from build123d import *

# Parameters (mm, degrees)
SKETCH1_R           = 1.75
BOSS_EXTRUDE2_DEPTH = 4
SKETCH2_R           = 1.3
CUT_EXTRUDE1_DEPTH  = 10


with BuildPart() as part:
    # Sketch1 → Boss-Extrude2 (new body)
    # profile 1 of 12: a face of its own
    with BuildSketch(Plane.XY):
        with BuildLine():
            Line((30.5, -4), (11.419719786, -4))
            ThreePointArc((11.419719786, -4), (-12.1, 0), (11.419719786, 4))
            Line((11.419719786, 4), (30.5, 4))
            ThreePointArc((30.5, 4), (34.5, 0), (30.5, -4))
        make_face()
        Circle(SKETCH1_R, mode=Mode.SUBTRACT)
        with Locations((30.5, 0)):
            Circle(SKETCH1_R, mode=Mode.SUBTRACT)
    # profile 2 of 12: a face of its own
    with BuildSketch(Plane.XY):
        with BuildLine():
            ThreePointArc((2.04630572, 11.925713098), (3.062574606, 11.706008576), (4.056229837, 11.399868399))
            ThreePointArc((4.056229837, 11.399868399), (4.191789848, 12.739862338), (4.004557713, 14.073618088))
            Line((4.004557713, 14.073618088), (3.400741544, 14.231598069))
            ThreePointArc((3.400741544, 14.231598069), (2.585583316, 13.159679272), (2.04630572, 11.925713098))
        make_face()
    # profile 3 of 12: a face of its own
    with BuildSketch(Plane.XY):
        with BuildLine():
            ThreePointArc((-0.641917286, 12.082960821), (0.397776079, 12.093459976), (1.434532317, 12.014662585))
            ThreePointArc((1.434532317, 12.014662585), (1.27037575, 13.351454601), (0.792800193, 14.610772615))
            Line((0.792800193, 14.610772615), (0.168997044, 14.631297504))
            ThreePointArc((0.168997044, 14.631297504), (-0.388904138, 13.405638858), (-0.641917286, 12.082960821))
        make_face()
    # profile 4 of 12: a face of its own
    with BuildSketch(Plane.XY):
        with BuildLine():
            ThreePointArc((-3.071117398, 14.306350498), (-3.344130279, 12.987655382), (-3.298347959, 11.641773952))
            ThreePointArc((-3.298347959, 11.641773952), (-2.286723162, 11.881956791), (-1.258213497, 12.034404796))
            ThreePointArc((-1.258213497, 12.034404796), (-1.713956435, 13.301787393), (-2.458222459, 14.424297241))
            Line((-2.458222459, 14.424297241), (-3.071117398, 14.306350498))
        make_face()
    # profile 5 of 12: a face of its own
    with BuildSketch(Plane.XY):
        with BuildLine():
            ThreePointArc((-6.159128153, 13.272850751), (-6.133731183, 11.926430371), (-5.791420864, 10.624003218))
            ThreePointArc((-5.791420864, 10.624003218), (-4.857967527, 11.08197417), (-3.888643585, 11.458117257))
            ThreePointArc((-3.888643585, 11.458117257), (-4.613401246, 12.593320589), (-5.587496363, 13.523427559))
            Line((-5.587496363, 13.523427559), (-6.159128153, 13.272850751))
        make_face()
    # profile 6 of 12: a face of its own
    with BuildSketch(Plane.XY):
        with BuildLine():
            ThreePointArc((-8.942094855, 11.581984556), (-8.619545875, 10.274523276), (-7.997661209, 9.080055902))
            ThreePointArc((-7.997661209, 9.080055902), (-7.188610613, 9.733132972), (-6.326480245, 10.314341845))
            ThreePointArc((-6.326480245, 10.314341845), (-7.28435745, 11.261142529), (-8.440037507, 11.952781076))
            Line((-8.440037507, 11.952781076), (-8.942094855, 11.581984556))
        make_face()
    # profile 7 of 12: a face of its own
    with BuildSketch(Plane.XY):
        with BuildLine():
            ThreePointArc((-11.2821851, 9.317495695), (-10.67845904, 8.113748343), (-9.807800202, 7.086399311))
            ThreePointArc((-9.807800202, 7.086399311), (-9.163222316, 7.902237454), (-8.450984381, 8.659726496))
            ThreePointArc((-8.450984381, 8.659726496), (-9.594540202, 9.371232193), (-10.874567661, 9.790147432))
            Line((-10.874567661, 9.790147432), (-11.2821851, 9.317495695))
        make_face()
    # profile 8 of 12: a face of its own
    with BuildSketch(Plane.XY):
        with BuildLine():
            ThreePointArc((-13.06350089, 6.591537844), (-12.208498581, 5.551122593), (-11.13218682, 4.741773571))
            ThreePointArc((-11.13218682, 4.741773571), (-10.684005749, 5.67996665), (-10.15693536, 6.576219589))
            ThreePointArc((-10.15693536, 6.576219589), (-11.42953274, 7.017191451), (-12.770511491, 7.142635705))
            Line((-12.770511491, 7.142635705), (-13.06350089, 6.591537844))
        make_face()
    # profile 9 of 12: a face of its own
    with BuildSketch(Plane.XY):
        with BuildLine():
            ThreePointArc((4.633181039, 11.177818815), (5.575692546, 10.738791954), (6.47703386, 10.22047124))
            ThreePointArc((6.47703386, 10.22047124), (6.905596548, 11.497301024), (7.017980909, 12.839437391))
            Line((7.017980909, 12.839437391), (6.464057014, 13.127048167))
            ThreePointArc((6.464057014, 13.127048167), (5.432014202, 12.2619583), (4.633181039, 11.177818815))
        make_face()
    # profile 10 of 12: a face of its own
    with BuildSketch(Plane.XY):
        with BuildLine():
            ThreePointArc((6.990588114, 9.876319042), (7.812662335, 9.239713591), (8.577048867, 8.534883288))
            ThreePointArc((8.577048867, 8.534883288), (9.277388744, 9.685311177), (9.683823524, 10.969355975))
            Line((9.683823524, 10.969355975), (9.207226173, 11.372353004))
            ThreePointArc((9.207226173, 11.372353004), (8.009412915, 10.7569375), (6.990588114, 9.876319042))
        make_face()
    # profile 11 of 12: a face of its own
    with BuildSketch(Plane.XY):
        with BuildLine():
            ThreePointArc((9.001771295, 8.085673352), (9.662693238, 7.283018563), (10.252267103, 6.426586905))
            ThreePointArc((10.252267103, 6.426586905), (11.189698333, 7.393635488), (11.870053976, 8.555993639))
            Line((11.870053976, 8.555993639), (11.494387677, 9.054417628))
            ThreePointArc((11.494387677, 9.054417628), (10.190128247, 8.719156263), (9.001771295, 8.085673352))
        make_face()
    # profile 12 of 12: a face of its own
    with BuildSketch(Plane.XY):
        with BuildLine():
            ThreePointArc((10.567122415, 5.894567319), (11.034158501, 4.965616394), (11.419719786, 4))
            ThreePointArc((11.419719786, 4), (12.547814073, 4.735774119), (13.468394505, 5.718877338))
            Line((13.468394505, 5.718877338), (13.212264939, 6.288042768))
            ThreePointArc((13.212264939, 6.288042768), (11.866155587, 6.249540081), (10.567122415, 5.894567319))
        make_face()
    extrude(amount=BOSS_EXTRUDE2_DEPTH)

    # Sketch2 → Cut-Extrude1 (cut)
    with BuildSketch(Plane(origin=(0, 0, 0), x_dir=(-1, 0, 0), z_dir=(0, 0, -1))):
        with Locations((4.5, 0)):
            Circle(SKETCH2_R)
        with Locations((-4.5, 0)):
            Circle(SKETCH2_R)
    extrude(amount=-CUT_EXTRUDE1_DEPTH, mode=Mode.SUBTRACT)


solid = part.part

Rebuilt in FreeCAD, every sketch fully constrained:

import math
import FreeCAD as App
import Part
import Sketcher

V = App.Vector

doc = App.newDocument("Part")
body = doc.addObject("PartDesign::Body", "Body")

# Sketch on XY plane
sketch1 = body.newObject("Sketcher::SketchObject", "Sketch")
sketch1.AttachmentSupport = (doc.getObject("XY_Plane"), [""])
sketch1.MapMode = "FlatFace"
sketch1.addGeometry(Part.LineSegment(V(11.4, -4, 0), V(30.5, -4, 0)), False)
sketch1.addGeometry(Part.ArcOfCircle(Part.Circle(V(30.5, 0, 0), V(0, 0, 1), 4), math.radians(-90), math.radians(90)), False)
sketch1.addGeometry(Part.LineSegment(V(30.5, 4, 0), V(11.4, 4, 0)), False)
sketch1.addGeometry(Part.ArcOfCircle(Part.Circle(V(8.9, 9, 0), V(0, 0, 1), 5.6), math.radians(-64), math.radians(-36)), False)
sketch1.addGeometry(Part.LineSegment(V(13.5, 5.7, 0), V(13.2, 6.3, 0)), False)
sketch1.addGeometry(Part.ArcOfCircle(Part.Circle(V(12.7, 0.6, 0), V(0, 0, 1), 5.7), math.radians(85), math.radians(112)), False)
sketch1.addGeometry(Part.ArcOfCircle(Part.Circle(V(0, 0, 0), V(0, 0, 1), 12.1), math.radians(29.15), math.radians(32.08)), False)
sketch1.addGeometry(Part.ArcOfCircle(Part.Circle(V(6.7, 10.8, 0), V(0, 0, 1), 5.6), math.radians(-51), math.radians(-23)), False)
sketch1.addGeometry(Part.LineSegment(V(11.9, 8.6, 0), V(11.5, 9.1, 0)), False)
sketch1.addGeometry(Part.ArcOfCircle(Part.Circle(V(12.2, 3.4, 0), V(0, 0, 1), 5.7), math.radians(98), math.radians(125)), False)
sketch1.addGeometry(Part.ArcOfCircle(Part.Circle(V(0, 0, 0), V(0, 0, 1), 12.1), math.radians(41.93), math.radians(44.86)), False)
sketch1.addGeometry(Part.ArcOfCircle(Part.Circle(V(4.2, 12, 0), V(0, 0, 1), 5.6), math.radians(-38), math.radians(-11)), False)
sketch1.addGeometry(Part.LineSegment(V(9.7, 11, 0), V(9.2, 11.4, 0)), False)
sketch1.addGeometry(Part.ArcOfCircle(Part.Circle(V(11.2, 6.1, 0), V(0, 0, 1), 5.7), math.radians(110), math.radians(138)), False)
sketch1.addGeometry(Part.ArcOfCircle(Part.Circle(V(0, 0, 0), V(0, 0, 1), 12.1), math.radians(54.71), math.radians(57.64)), False)
sketch1.addGeometry(Part.ArcOfCircle(Part.Circle(V(1.4, 12.6, 0), V(0, 0, 1), 5.6), math.radians(-25), math.radians(2)), False)
sketch1.addGeometry(Part.LineSegment(V(7, 12.8, 0), V(6.5, 13.1, 0)), False)
sketch1.addGeometry(Part.ArcOfCircle(Part.Circle(V(9.6, 8.4, 0), V(0, 0, 1), 5.7), math.radians(123), math.radians(150)), False)
sketch1.addGeometry(Part.ArcOfCircle(Part.Circle(V(0, 0, 0), V(0, 0, 1), 12.1), math.radians(67.49), math.radians(70.41)), False)
sketch1.addGeometry(Part.ArcOfCircle(Part.Circle(V(-1.4, 12.6, 0), V(0, 0, 1), 5.6), math.radians(-13), math.radians(15)), False)
sketch1.addGeometry(Part.LineSegment(V(4, 14.1, 0), V(3.4, 14.2, 0)), False)
sketch1.addGeometry(Part.ArcOfCircle(Part.Circle(V(7.5, 10.3, 0), V(0, 0, 1), 5.7), math.radians(136), math.radians(163)), False)
sketch1.addGeometry(Part.ArcOfCircle(Part.Circle(V(0, 0, 0), V(0, 0, 1), 12.1), math.radians(80.26), math.radians(83.19)), False)
sketch1.addGeometry(Part.ArcOfCircle(Part.Circle(V(-4.2, 12, 0), V(0, 0, 1), 5.6), math.radians(0), math.radians(28)), False)
sketch1.addGeometry(Part.LineSegment(V(0.8, 14.6, 0), V(0.2, 14.6, 0)), False)
sketch1.addGeometry(Part.ArcOfCircle(Part.Circle(V(5, 11.7, 0), V(0, 0, 1), 5.7), math.radians(149), math.radians(176)), False)
sketch1.addGeometry(Part.ArcOfCircle(Part.Circle(V(0, 0, 0), V(0, 0, 1), 12.1), math.radians(93.04), math.radians(95.97)), False)
sketch1.addGeometry(Part.ArcOfCircle(Part.Circle(V(-6.7, 10.8, 0), V(0, 0, 1), 5.6), math.radians(13), math.radians(40)), False)
sketch1.addGeometry(Part.LineSegment(V(-2.5, 14.4, 0), V(-3.1, 14.3, 0)), False)
sketch1.addGeometry(Part.ArcOfCircle(Part.Circle(V(2.3, 12.5, 0), V(0, 0, 1), 5.7), math.radians(161), math.radians(189)), False)
sketch1.addGeometry(Part.ArcOfCircle(Part.Circle(V(0, 0, 0), V(0, 0, 1), 12.1), math.radians(105.82), math.radians(108.75)), False)
sketch1.addGeometry(Part.ArcOfCircle(Part.Circle(V(-9, 9, 0), V(0, 0, 1), 5.6), math.radians(26), math.radians(53)), False)
sketch1.addGeometry(Part.LineSegment(V(-5.6, 13.5, 0), V(-6.2, 13.3, 0)), False)
sketch1.addGeometry(Part.ArcOfCircle(Part.Circle(V(-0.5, 12.7, 0), V(0, 0, 1), 5.7), math.radians(174), math.radians(202)), False)
sketch1.addGeometry(Part.ArcOfCircle(Part.Circle(V(0, 0, 0), V(0, 0, 1), 12.1), math.radians(118.6), math.radians(121.52)), False)
sketch1.addGeometry(Part.ArcOfCircle(Part.Circle(V(-10.7, 6.8, 0), V(0, 0, 1), 5.6), math.radians(38), math.radians(66)), False)
sketch1.addGeometry(Part.LineSegment(V(-8.4, 12, 0), V(-8.9, 11.6, 0)), False)
sketch1.addGeometry(Part.ArcOfCircle(Part.Circle(V(-3.3, 12.3, 0), V(0, 0, 1), 5.7), math.radians(-173), math.radians(-146)), False)
sketch1.addGeometry(Part.ArcOfCircle(Part.Circle(V(0, 0, 0), V(0, 0, 1), 12.1), math.radians(131.37), math.radians(134.3)), False)
sketch1.addGeometry(Part.ArcOfCircle(Part.Circle(V(-12, 4.3, 0), V(0, 0, 1), 5.6), math.radians(51), math.radians(79)), False)
sketch1.addGeometry(Part.LineSegment(V(-10.9, 9.8, 0), V(-11.3, 9.3, 0)), False)
sketch1.addGeometry(Part.ArcOfCircle(Part.Circle(V(-5.9, 11.2, 0), V(0, 0, 1), 5.7), math.radians(-160), math.radians(-133)), False)
sketch1.addGeometry(Part.ArcOfCircle(Part.Circle(V(0, 0, 0), V(0, 0, 1), 12.1), math.radians(144.15), math.radians(147.08)), False)
sketch1.addGeometry(Part.ArcOfCircle(Part.Circle(V(-12.6, 1.5, 0), V(0, 0, 1), 5.6), math.radians(64), math.radians(92)), False)
sketch1.addGeometry(Part.LineSegment(V(-12.8, 7.1, 0), V(-13.1, 6.6, 0)), False)
sketch1.addGeometry(Part.ArcOfCircle(Part.Circle(V(-8.3, 9.6, 0), V(0, 0, 1), 5.7), math.radians(-147), math.radians(-120)), False)
sketch1.addGeometry(Part.ArcOfCircle(Part.Circle(V(0, 0, 0), V(0, 0, 1), 12.1), math.radians(157), math.radians(341)), False)
sketch1.addGeometry(Part.Circle(V(30.5, 0, 0), V(0, 0, 1), 1.8), False)
sketch1.addGeometry(Part.Circle(V(0, 0, 0), V(0, 0, 1), 1.8), False)
sketch1.addConstraint(Sketcher.Constraint("Tangent", 0, 2, 1, 1))
sketch1.addConstraint(Sketcher.Constraint("Tangent", 1, 2, 2, 1))
sketch1.addConstraint(Sketcher.Constraint("Coincident", 2, 2, 3, 1))
sketch1.addConstraint(Sketcher.Constraint("Coincident", 3, 2, 4, 1))
sketch1.addConstraint(Sketcher.Constraint("Coincident", 4, 2, 5, 1))
sketch1.addConstraint(Sketcher.Constraint("Coincident", 5, 2, 6, 1))
sketch1.addConstraint(Sketcher.Constraint("Coincident", 6, 2, 7, 1))
sketch1.addConstraint(Sketcher.Constraint("Coincident", 7, 2, 8, 1))
sketch1.addConstraint(Sketcher.Constraint("Coincident", 8, 2, 9, 1))
sketch1.addConstraint(Sketcher.Constraint("Coincident", 9, 2, 10, 1))
sketch1.addConstraint(Sketcher.Constraint("Coincident", 10, 2, 11, 1))
sketch1.addConstraint(Sketcher.Constraint("Coincident", 11, 2, 12, 1))
sketch1.addConstraint(Sketcher.Constraint("Coincident", 12, 2, 13, 1))
sketch1.addConstraint(Sketcher.Constraint("Coincident", 13, 2, 14, 1))
sketch1.addConstraint(Sketcher.Constraint("Coincident", 14, 2, 15, 1))
sketch1.addConstraint(Sketcher.Constraint("Coincident", 15, 2, 16, 1))
sketch1.addConstraint(Sketcher.Constraint("Coincident", 16, 2, 17, 1))
sketch1.addConstraint(Sketcher.Constraint("Coincident", 17, 2, 18, 1))
sketch1.addConstraint(Sketcher.Constraint("Coincident", 18, 2, 19, 1))
sketch1.addConstraint(Sketcher.Constraint("Coincident", 19, 2, 20, 1))
sketch1.addConstraint(Sketcher.Constraint("Coincident", 20, 2, 21, 1))
sketch1.addConstraint(Sketcher.Constraint("Coincident", 21, 2, 22, 1))
sketch1.addConstraint(Sketcher.Constraint("Coincident", 22, 2, 23, 1))
sketch1.addConstraint(Sketcher.Constraint("Coincident", 23, 2, 24, 1))
sketch1.addConstraint(Sketcher.Constraint("Coincident", 24, 2, 25, 1))
sketch1.addConstraint(Sketcher.Constraint("Coincident", 25, 2, 26, 1))
sketch1.addConstraint(Sketcher.Constraint("Coincident", 26, 2, 27, 1))
sketch1.addConstraint(Sketcher.Constraint("Coincident", 27, 2, 28, 1))
sketch1.addConstraint(Sketcher.Constraint("Coincident", 28, 2, 29, 1))
sketch1.addConstraint(Sketcher.Constraint("Coincident", 29, 2, 30, 1))
sketch1.addConstraint(Sketcher.Constraint("Coincident", 30, 2, 31, 1))
sketch1.addConstraint(Sketcher.Constraint("Coincident", 31, 2, 32, 1))
sketch1.addConstraint(Sketcher.Constraint("Coincident", 32, 2, 33, 1))
sketch1.addConstraint(Sketcher.Constraint("Coincident", 33, 2, 34, 1))
sketch1.addConstraint(Sketcher.Constraint("Coincident", 34, 2, 35, 1))
sketch1.addConstraint(Sketcher.Constraint("Coincident", 35, 2, 36, 1))
sketch1.addConstraint(Sketcher.Constraint("Coincident", 36, 2, 37, 1))
sketch1.addConstraint(Sketcher.Constraint("Coincident", 37, 2, 38, 1))
sketch1.addConstraint(Sketcher.Constraint("Coincident", 38, 2, 39, 1))
sketch1.addConstraint(Sketcher.Constraint("Coincident", 39, 2, 40, 1))
sketch1.addConstraint(Sketcher.Constraint("Coincident", 40, 2, 41, 1))
sketch1.addConstraint(Sketcher.Constraint("Coincident", 41, 2, 42, 1))
sketch1.addConstraint(Sketcher.Constraint("Coincident", 42, 2, 43, 1))
sketch1.addConstraint(Sketcher.Constraint("Coincident", 43, 2, 44, 1))
sketch1.addConstraint(Sketcher.Constraint("Coincident", 44, 2, 45, 1))
sketch1.addConstraint(Sketcher.Constraint("Coincident", 45, 2, 46, 1))
sketch1.addConstraint(Sketcher.Constraint("Coincident", 46, 2, 0, 1))
sketch1.addConstraint(Sketcher.Constraint("Horizontal", 0))
sketch1.addConstraint(Sketcher.Constraint("Horizontal", 2))
sketch1.addConstraint(Sketcher.Constraint("Coincident", 6, 3, -1, 1))
sketch1.addConstraint(Sketcher.Constraint("Coincident", 10, 3, -1, 1))
sketch1.addConstraint(Sketcher.Constraint("Coincident", 14, 3, -1, 1))
sketch1.addConstraint(Sketcher.Constraint("Coincident", 18, 3, -1, 1))
sketch1.addConstraint(Sketcher.Constraint("Coincident", 22, 3, -1, 1))
sketch1.addConstraint(Sketcher.Constraint("Coincident", 26, 3, -1, 1))
sketch1.addConstraint(Sketcher.Constraint("Coincident", 30, 3, -1, 1))
sketch1.addConstraint(Sketcher.Constraint("Coincident", 34, 3, -1, 1))
sketch1.addConstraint(Sketcher.Constraint("Coincident", 38, 3, -1, 1))
sketch1.addConstraint(Sketcher.Constraint("Coincident", 42, 3, -1, 1))
sketch1.addConstraint(Sketcher.Constraint("Coincident", 46, 3, -1, 1))
sketch1.addConstraint(Sketcher.Constraint("Coincident", 48, 3, -1, 1))
sketch1.addConstraint(Sketcher.Constraint("Coincident", 47, 3, 1, 3))
sketch1.addConstraint(Sketcher.Constraint("Equal", 3, 7))
sketch1.addConstraint(Sketcher.Constraint("Equal", 5, 9))
sketch1.addConstraint(Sketcher.Constraint("Equal", 6, 10))
sketch1.addConstraint(Sketcher.Constraint("Equal", 7, 11))
sketch1.addConstraint(Sketcher.Constraint("Equal", 9, 13))
sketch1.addConstraint(Sketcher.Constraint("Equal", 10, 14))
sketch1.addConstraint(Sketcher.Constraint("Equal", 11, 15))
sketch1.addConstraint(Sketcher.Constraint("Equal", 13, 17))
sketch1.addConstraint(Sketcher.Constraint("Equal", 14, 18))
sketch1.addConstraint(Sketcher.Constraint("Equal", 15, 19))
sketch1.addConstraint(Sketcher.Constraint("Equal", 17, 21))
sketch1.addConstraint(Sketcher.Constraint("Equal", 18, 22))
sketch1.addConstraint(Sketcher.Constraint("Equal", 19, 23))
sketch1.addConstraint(Sketcher.Constraint("Equal", 21, 25))
sketch1.addConstraint(Sketcher.Constraint("Equal", 22, 26))
sketch1.addConstraint(Sketcher.Constraint("Equal", 23, 27))
sketch1.addConstraint(Sketcher.Constraint("Equal", 25, 29))
sketch1.addConstraint(Sketcher.Constraint("Equal", 26, 30))
sketch1.addConstraint(Sketcher.Constraint("Equal", 27, 31))
sketch1.addConstraint(Sketcher.Constraint("Equal", 29, 33))
sketch1.addConstraint(Sketcher.Constraint("Equal", 30, 34))
sketch1.addConstraint(Sketcher.Constraint("Equal", 31, 35))
sketch1.addConstraint(Sketcher.Constraint("Equal", 33, 37))
sketch1.addConstraint(Sketcher.Constraint("Equal", 34, 38))
sketch1.addConstraint(Sketcher.Constraint("Equal", 35, 39))
sketch1.addConstraint(Sketcher.Constraint("Equal", 37, 41))
sketch1.addConstraint(Sketcher.Constraint("Equal", 38, 42))
sketch1.addConstraint(Sketcher.Constraint("Equal", 39, 43))
sketch1.addConstraint(Sketcher.Constraint("Equal", 41, 45))
sketch1.addConstraint(Sketcher.Constraint("Equal", 42, 46))
sketch1.addConstraint(Sketcher.Constraint("Equal", 47, 48))
sketch1.addConstraint(Sketcher.Constraint("Symmetric", 2, 2, 46, 2, -1))
sketch1.addConstraint(Sketcher.Constraint("Equal", 4, 8))
sketch1.addConstraint(Sketcher.Constraint("Equal", 8, 12))
sketch1.addConstraint(Sketcher.Constraint("Equal", 12, 16))
sketch1.addConstraint(Sketcher.Constraint("Equal", 16, 20))
sketch1.addConstraint(Sketcher.Constraint("Equal", 20, 24))
sketch1.addConstraint(Sketcher.Constraint("Equal", 24, 28))
sketch1.addConstraint(Sketcher.Constraint("Equal", 28, 32))
sketch1.addConstraint(Sketcher.Constraint("Equal", 32, 36))
sketch1.addConstraint(Sketcher.Constraint("Equal", 36, 40))
sketch1.addConstraint(Sketcher.Constraint("Equal", 40, 44))
sketch1.addConstraint(Sketcher.Constraint("Radius", 1, 4.0))
sketch1.addConstraint(Sketcher.Constraint("Diameter", 47, 3.5))
sketch1.addConstraint(Sketcher.Constraint("Radius", 6, 12.1))
sketch1.addConstraint(Sketcher.Constraint("DistanceX", -1, 1, 1, 3, 30.5))
sketch1.addConstraint(Sketcher.Constraint("DistanceY", -1, 1, 3, 3, 9.039999))
sketch1.addConstraint(Sketcher.Constraint("Radius", 5, 5.66801))
sketch1.addConstraint(Sketcher.Constraint("DistanceX", 23, 3, -1, 1, 4.183999))
sketch1.addConstraint(Sketcher.Constraint("Radius", 3, 5.618543))
sketch1.addConstraint(Sketcher.Constraint("DistanceX", -1, 1, 15, 3, 1.403201))
sketch1.addConstraint(Sketcher.Constraint("DistanceY", -1, 1, 19, 3, 12.6313))
sketch1.addConstraint(Sketcher.Constraint("DistanceY", -1, 1, 35, 3, 6.820601))
sketch1.addConstraint(Sketcher.Constraint("DistanceX", 41, 3, -1, 1, 5.949699))
sketch1.addConstraint(Sketcher.Constraint("DistanceY", -1, 1, 45, 3, 9.644501))
sketch1.addConstraint(Sketcher.Constraint("DistanceY", -1, 1, 20, 2, 14.231598))
sketch1.addConstraint(Sketcher.Constraint("DistanceX", -1, 1, 23, 2, 0.7928))
sketch1.addConstraint(Sketcher.Constraint("DistanceX", 41, 2, -1, 1, 9.8078))
sketch1.addConstraint(Sketcher.Constraint("DistanceX", 44, 2, -1, 1, 13.063501))
sketch1.addConstraint(Sketcher.Constraint("Distance", 4, 0.624141))
sketch1.addConstraint(Sketcher.Constraint("DistanceX", -1, 1, 5, 3, 12.700118))
sketch1.addConstraint(Sketcher.Constraint("DistanceY", -1, 1, 5, 3, 0.643218))
sketch1.addConstraint(Sketcher.Constraint("DistanceX", -1, 1, 9, 3, 12.243361))
sketch1.addConstraint(Sketcher.Constraint("DistanceY", -1, 1, 9, 3, 3.43611))
sketch1.addConstraint(Sketcher.Constraint("DistanceX", -1, 1, 11, 3, 4.162611))
sketch1.addConstraint(Sketcher.Constraint("DistanceY", -1, 1, 13, 3, 6.058822))
sketch1.addConstraint(Sketcher.Constraint("DistanceY", -1, 1, 15, 3, 12.63382))
sketch1.addConstraint(Sketcher.Constraint("DistanceY", -1, 1, 23, 3, 12.003188))
sketch1.addConstraint(Sketcher.Constraint("DistanceX", -1, 1, 25, 3, 5.01224))
sketch1.addConstraint(Sketcher.Constraint("DistanceX", -1, 1, 29, 3, 2.303381))
sketch1.addConstraint(Sketcher.Constraint("DistanceY", -1, 1, 37, 3, 12.27623))
sketch1.addConstraint(Sketcher.Constraint("DistanceX", 39, 3, -1, 1, 11.969532))
sketch1.addConstraint(Sketcher.Constraint("DistanceX", 43, 3, -1, 1, 12.619562))
sketch1.addConstraint(Sketcher.Constraint("DistanceY", -1, 1, 43, 3, 1.526121))
sketch1.addConstraint(Sketcher.Constraint("DistanceX", -1, 1, 10, 2, 8.577049))
sketch1.addConstraint(Sketcher.Constraint("DistanceX", -1, 1, 13, 2, 6.990588))
sketch1.addConstraint(Sketcher.Constraint("DistanceX", -1, 1, 15, 2, 7.017981))
sketch1.addConstraint(Sketcher.Constraint("DistanceY", -1, 1, 16, 2, 13.127048))
sketch1.addConstraint(Sketcher.Constraint("DistanceX", -1, 1, 17, 2, 4.633181))
sketch1.addConstraint(Sketcher.Constraint("DistanceX", -1, 1, 18, 2, 4.05623))
sketch1.addConstraint(Sketcher.Constraint("DistanceY", -1, 1, 19, 2, 14.073618))
sketch1.addConstraint(Sketcher.Constraint("DistanceY", -1, 1, 28, 2, 14.30635))
sketch1.addConstraint(Sketcher.Constraint("DistanceX", 32, 2, -1, 1, 6.159128))
sketch1.addConstraint(Sketcher.Constraint("DistanceY", -1, 1, 32, 2, 13.272851))
sketch1.addConstraint(Sketcher.Constraint("DistanceX", 33, 2, -1, 1, 5.791421))
sketch1.addConstraint(Sketcher.Constraint("DistanceX", 34, 2, -1, 1, 6.32648))
sketch1.addConstraint(Sketcher.Constraint("DistanceY", -1, 1, 35, 2, 11.952781))
sketch1.addConstraint(Sketcher.Constraint("DistanceX", 37, 2, -1, 1, 7.997661))
sketch1.addConstraint(Sketcher.Constraint("DistanceX", 43, 2, -1, 1, 12.770511))
sketch1.addConstraint(Sketcher.Constraint("DistanceX", -1, 1, 7, 3, 6.715858))
sketch1.addConstraint(Sketcher.Constraint("DistanceY", -1, 1, 7, 3, 10.792573))
sketch1.addConstraint(Sketcher.Constraint("DistanceX", -1, 1, 21, 3, 7.472856))
sketch1.addConstraint(Sketcher.Constraint("DistanceY", -1, 1, 25, 3, 11.686924))
sketch1.addConstraint(Sketcher.Constraint("DistanceX", 27, 3, -1, 1, 6.735072))
sketch1.addConstraint(Sketcher.Constraint("DistanceY", -1, 1, 27, 3, 10.780593))
sketch1.addConstraint(Sketcher.Constraint("DistanceY", -1, 1, 29, 3, 12.506045))
sketch1.addConstraint(Sketcher.Constraint("DistanceX", 31, 3, -1, 1, 8.952577))
sketch1.addConstraint(Sketcher.Constraint("DistanceY", -1, 1, 31, 3, 9.024065))
sketch1.addConstraint(Sketcher.Constraint("DistanceY", -1, 1, 39, 3, 4.279332))
sketch1.addConstraint(Sketcher.Constraint("DistanceX", -1, 1, 3, 2, 13.468395))
sketch1.addConstraint(Sketcher.Constraint("DistanceX", -1, 1, 7, 2, 11.870054))
sketch1.addConstraint(Sketcher.Constraint("DistanceX", -1, 1, 11, 2, 9.683824))
sketch1.addConstraint(Sketcher.Constraint("DistanceX", 39, 2, -1, 1, 10.874568))
pad1 = body.newObject("PartDesign::Pad", "Pad")
pad1.Profile = sketch1
pad1.Length = 4

# Sketch on XY plane
sketch2 = body.newObject("Sketcher::SketchObject", "Sketch001")
sketch2.AttachmentSupport = (doc.getObject("XY_Plane"), [""])
sketch2.MapMode = "FlatFace"
sketch2.addGeometry(Part.Circle(V(-4.5, 0, 0), V(0, 0, 1), 1.3), False)
sketch2.addGeometry(Part.Circle(V(4.5, 0, 0), V(0, 0, 1), 1.3), False)
sketch2.addConstraint(Sketcher.Constraint("Equal", 0, 1))
sketch2.addConstraint(Sketcher.Constraint("Symmetric", 0, 3, 1, 3, -1, 1))
sketch2.addConstraint(Sketcher.Constraint("PointOnObject", 0, 3, -1))
sketch2.addConstraint(Sketcher.Constraint("Diameter", 0, 2.6))
sketch2.addConstraint(Sketcher.Constraint("DistanceX", 0, 3, 1, 3, 9.0))
pocket1 = body.newObject("PartDesign::Pocket", "Pocket")
pocket1.Profile = sketch2
pocket1.Length = 10
pocket1.Reversed = True

doc.recompute()
